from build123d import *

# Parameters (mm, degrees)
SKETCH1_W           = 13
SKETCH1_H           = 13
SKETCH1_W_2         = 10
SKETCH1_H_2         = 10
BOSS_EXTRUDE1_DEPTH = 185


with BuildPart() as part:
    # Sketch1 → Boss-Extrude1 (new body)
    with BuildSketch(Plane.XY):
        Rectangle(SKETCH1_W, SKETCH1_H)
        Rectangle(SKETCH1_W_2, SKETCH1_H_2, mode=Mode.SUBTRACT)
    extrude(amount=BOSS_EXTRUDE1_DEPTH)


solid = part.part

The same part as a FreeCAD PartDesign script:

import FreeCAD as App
import Part
import Sketcher

V = App.Vector

doc = App.newDocument("Part")
body = doc.addObject("PartDesign::Body", "Body")

# Sketch on XY plane
sketch1 = body.newObject("Sketcher::SketchObject", "Sketch")
sketch1.AttachmentSupport = (doc.getObject("XY_Plane"), [""])
sketch1.MapMode = "FlatFace"
sketch1.addGeometry(Part.LineSegment(V(-6, 6, 0), V(-6, -6, 0)), False)
sketch1.addGeometry(Part.LineSegment(V(-6, -6, 0), V(6, -6, 0)), False)
sketch1.addGeometry(Part.LineSegment(V(6, -6, 0), V(6, 6, 0)), False)
sketch1.addGeometry(Part.LineSegment(V(6, 6, 0), V(-6, 6, 0)), False)
sketch1.addGeometry(Part.LineSegment(V(5, -5, 0), V(-5, -5, 0)), False)
sketch1.addGeometry(Part.LineSegment(V(-5, -5, 0), V(-5, 5, 0)), False)
sketch1.addGeometry(Part.LineSegment(V(-5, 5, 0), V(5, 5, 0)), False)
sketch1.addGeometry(Part.LineSegment(V(5, 5, 0), V(5, -5, 0)), False)
sketch1.addConstraint(Sketcher.Constraint("Coincident", 0, 2, 1, 1))
sketch1.addConstraint(Sketcher.Constraint("Coincident", 1, 2, 2, 1))
sketch1.addConstraint(Sketcher.Constraint("Coincident", 2, 2, 3, 1))
sketch1.addConstraint(Sketcher.Constraint("Coincident", 3, 2, 0, 1))
sketch1.addConstraint(Sketcher.Constraint("Coincident", 4, 2, 5, 1))
sketch1.addConstraint(Sketcher.Constraint("Coincident", 5, 2, 6, 1))
sketch1.addConstraint(Sketcher.Constraint("Coincident", 6, 2, 7, 1))
sketch1.addConstraint(Sketcher.Constraint("Coincident", 7, 2, 4, 1))
sketch1.addConstraint(Sketcher.Constraint("Vertical", 0))
sketch1.addConstraint(Sketcher.Constraint("Horizontal", 1))
sketch1.addConstraint(Sketcher.Constraint("Vertical", 2))
sketch1.addConstraint(Sketcher.Constraint("Horizontal", 3))
sketch1.addConstraint(Sketcher.Constraint("Horizontal", 4))
sketch1.addConstraint(Sketcher.Constraint("Vertical", 5))
sketch1.addConstraint(Sketcher.Constraint("Horizontal", 6))
sketch1.addConstraint(Sketcher.Constraint("Vertical", 7))
sketch1.addConstraint(Sketcher.Constraint("Symmetric", 0, 2, 2, 2, -1, 1))
sketch1.addConstraint(Sketcher.Constraint("Symmetric", 4, 2, 6, 2, -1, 1))
sketch1.addConstraint(Sketcher.Constraint("Equal", 3, 0))
sketch1.addConstraint(Sketcher.Constraint("Equal", 6, 5))
sketch1.addConstraint(Sketcher.Constraint("DistanceX", 1, 1, 1, 2, 13.0))
sketch1.addConstraint(Sketcher.Constraint("DistanceX", 4, 2, 4, 1, 10.0))
pad1 = body.newObject("PartDesign::Pad", "Pad")
pad1.Profile = sketch1
pad1.Length = 185

doc.recompute()
